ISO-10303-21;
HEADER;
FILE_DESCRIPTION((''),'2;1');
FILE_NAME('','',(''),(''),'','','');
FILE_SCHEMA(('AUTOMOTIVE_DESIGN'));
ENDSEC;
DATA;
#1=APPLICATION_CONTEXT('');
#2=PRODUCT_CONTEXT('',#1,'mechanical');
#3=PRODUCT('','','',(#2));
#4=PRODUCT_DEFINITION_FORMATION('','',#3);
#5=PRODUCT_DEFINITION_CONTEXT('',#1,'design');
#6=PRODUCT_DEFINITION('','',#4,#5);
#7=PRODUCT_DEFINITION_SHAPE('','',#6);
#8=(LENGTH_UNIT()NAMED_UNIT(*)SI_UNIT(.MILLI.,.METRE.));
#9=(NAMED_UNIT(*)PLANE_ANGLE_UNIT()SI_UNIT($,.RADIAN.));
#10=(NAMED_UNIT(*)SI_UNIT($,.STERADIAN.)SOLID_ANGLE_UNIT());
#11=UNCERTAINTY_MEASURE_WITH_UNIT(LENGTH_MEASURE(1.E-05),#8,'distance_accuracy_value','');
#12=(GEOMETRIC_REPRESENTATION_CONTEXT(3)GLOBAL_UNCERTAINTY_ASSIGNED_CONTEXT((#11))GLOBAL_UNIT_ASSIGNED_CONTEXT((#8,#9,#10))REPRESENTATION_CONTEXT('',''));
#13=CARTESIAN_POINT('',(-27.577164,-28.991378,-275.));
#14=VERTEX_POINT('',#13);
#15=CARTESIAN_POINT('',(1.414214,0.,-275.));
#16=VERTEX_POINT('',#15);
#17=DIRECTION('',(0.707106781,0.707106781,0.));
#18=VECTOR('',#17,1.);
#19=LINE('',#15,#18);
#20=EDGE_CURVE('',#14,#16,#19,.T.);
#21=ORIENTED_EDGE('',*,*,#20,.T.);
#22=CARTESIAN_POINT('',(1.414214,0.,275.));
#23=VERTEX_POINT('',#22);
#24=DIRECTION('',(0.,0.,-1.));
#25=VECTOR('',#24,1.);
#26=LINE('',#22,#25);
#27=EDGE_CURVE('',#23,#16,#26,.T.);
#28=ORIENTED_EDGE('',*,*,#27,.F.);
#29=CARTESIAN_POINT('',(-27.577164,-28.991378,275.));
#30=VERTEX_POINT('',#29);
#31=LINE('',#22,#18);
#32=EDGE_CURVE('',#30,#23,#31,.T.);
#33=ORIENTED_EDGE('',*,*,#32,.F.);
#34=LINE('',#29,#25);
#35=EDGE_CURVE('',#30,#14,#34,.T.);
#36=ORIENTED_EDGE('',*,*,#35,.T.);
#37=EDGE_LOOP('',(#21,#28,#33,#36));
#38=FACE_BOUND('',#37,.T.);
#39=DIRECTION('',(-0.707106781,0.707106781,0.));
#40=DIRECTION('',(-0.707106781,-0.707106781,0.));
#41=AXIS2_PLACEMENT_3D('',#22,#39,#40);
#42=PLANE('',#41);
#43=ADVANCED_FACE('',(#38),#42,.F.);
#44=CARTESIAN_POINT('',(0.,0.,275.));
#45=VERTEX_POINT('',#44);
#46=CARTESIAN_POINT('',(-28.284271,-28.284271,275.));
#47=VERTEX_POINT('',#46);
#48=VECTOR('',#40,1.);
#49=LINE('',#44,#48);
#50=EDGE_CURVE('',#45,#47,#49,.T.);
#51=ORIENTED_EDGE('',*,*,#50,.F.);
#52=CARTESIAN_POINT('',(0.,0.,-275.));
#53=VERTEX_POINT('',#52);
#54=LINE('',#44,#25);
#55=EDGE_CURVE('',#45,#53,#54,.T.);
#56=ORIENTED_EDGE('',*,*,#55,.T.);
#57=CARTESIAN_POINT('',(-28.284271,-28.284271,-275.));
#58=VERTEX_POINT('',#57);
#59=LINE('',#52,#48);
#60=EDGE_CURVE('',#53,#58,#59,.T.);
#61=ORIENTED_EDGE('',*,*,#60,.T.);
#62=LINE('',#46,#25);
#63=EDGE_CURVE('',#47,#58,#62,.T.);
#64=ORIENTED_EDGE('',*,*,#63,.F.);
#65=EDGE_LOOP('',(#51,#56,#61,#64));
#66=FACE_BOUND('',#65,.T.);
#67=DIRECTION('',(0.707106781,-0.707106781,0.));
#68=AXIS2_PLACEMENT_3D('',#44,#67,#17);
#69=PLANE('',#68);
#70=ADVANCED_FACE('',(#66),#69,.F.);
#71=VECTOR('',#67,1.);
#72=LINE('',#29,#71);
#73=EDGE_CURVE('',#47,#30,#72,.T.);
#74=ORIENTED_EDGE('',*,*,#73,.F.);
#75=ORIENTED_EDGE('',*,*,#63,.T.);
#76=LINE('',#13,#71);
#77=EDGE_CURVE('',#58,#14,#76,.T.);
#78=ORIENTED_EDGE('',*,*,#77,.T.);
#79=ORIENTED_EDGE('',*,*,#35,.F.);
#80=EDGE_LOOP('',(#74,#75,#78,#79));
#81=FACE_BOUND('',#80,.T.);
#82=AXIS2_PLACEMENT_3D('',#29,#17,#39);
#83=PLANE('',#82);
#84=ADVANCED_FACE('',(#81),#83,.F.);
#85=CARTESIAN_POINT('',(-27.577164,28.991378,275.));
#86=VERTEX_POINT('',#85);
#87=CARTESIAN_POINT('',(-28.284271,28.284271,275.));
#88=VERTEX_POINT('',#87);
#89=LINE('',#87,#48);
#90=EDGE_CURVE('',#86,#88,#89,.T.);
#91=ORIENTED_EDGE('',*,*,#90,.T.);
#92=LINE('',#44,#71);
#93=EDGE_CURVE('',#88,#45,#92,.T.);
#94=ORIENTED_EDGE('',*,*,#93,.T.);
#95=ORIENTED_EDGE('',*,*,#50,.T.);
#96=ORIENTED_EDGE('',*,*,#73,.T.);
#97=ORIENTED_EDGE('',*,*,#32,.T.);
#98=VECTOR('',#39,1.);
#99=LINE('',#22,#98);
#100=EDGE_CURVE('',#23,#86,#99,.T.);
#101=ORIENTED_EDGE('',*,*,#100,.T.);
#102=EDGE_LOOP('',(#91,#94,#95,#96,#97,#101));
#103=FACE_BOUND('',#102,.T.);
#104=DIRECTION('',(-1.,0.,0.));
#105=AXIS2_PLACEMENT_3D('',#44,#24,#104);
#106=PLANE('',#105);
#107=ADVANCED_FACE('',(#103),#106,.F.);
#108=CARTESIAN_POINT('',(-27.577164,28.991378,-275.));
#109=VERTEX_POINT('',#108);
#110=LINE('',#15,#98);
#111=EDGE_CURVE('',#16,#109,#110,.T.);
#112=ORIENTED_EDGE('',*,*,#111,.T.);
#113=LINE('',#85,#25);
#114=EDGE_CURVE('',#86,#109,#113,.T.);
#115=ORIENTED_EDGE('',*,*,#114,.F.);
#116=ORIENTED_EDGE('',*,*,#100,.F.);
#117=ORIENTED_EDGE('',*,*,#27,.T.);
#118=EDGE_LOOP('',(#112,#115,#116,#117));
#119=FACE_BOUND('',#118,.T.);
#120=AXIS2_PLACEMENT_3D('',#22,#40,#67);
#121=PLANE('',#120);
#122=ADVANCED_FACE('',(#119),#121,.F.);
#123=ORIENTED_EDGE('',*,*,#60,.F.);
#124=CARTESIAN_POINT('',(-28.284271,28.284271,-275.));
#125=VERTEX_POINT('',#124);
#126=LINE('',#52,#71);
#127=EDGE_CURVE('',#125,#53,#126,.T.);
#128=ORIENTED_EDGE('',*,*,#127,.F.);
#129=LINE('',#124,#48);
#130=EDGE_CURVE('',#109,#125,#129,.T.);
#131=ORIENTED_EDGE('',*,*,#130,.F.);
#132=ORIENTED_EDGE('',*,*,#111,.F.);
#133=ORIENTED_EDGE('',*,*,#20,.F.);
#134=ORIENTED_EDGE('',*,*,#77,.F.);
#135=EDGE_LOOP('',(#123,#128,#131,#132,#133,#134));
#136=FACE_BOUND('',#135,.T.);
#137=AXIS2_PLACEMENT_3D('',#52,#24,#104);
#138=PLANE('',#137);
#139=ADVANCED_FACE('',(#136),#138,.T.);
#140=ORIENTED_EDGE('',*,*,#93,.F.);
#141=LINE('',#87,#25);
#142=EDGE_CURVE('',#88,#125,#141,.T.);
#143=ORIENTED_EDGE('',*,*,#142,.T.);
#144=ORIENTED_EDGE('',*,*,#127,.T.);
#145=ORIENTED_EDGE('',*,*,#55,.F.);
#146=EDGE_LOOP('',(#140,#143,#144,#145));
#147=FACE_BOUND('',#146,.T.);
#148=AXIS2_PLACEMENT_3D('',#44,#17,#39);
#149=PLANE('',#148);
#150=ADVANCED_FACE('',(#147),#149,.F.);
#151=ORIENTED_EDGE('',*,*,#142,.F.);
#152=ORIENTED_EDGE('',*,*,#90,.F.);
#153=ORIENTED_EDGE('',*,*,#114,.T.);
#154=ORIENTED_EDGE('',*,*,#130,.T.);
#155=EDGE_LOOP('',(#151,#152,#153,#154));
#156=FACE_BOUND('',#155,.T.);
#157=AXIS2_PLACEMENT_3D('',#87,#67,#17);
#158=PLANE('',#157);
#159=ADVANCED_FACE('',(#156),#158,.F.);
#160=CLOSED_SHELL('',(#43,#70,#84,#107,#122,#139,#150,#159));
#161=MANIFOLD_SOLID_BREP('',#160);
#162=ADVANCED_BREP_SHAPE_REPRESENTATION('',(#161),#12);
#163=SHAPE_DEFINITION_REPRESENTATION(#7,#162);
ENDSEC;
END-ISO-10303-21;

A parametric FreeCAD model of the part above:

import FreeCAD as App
import Part
import Sketcher
from FreeCAD import Vector
Q = App.Units.Quantity

doc = App.newDocument("Part")
body = doc.addObject("PartDesign::Body", "Body")

# Sketch on XY plane
sketch1 = body.newObject("Sketcher::SketchObject", "Sketch")
sketch1.AttachmentSupport = (doc.getObject("XY_Plane"), [""])
sketch1.MapMode = "FlatFace"
sketch1.addGeometry([
    Part.LineSegment(Vector(-28.3, 28.3, 0), Vector(0, 0, 0)),  # 0
    Part.LineSegment(Vector(0, 0, 0), Vector(-28.3, -28.3, 0)),  # 1
    Part.LineSegment(Vector(-28.3, -28.3, 0), Vector(-27.6, -29, 0)),  # 2
    Part.LineSegment(Vector(-27.6, -29, 0), Vector(1.4, 0, 0)),  # 3
    Part.LineSegment(Vector(1.4, 0, 0), Vector(-27.6, 29, 0)),  # 4
    Part.LineSegment(Vector(-27.6, 29, 0), Vector(-28.3, 28.3, 0)),  # 5
], False)
sketch1.addConstraint([
    Sketcher.Constraint("Coincident", 0, 2, 1, 1),
    Sketcher.Constraint("Coincident", 1, 2, 2, 1),
    Sketcher.Constraint("Coincident", 2, 2, 3, 1),
    Sketcher.Constraint("Coincident", 3, 2, 4, 1),
    Sketcher.Constraint("Coincident", 4, 2, 5, 1),
    Sketcher.Constraint("Coincident", 5, 2, 0, 1),
    Sketcher.Constraint("Coincident", 0, 2, -1, 1),
    Sketcher.Constraint("Symmetric", 2, 2, 4, 2, -1),
    Sketcher.Constraint("Symmetric", 1, 2, 5, 2, -1),
    Sketcher.Constraint("PointOnObject", 3, 2, -1),
    Sketcher.Constraint("Perpendicular", 0, 1),
    Sketcher.Constraint("Perpendicular", 1, 2),
    Sketcher.Constraint("Perpendicular", 2, 3),
    Sketcher.Constraint("Distance", 0, Q("40 mm")),
    Sketcher.Constraint("Distance", 2, Q("1 mm")),
])
pad1 = body.newObject("PartDesign::Pad", "Pad")
pad1.Profile = sketch1
pad1.Length = 550
pad1.Midplane = True

doc.recompute()
